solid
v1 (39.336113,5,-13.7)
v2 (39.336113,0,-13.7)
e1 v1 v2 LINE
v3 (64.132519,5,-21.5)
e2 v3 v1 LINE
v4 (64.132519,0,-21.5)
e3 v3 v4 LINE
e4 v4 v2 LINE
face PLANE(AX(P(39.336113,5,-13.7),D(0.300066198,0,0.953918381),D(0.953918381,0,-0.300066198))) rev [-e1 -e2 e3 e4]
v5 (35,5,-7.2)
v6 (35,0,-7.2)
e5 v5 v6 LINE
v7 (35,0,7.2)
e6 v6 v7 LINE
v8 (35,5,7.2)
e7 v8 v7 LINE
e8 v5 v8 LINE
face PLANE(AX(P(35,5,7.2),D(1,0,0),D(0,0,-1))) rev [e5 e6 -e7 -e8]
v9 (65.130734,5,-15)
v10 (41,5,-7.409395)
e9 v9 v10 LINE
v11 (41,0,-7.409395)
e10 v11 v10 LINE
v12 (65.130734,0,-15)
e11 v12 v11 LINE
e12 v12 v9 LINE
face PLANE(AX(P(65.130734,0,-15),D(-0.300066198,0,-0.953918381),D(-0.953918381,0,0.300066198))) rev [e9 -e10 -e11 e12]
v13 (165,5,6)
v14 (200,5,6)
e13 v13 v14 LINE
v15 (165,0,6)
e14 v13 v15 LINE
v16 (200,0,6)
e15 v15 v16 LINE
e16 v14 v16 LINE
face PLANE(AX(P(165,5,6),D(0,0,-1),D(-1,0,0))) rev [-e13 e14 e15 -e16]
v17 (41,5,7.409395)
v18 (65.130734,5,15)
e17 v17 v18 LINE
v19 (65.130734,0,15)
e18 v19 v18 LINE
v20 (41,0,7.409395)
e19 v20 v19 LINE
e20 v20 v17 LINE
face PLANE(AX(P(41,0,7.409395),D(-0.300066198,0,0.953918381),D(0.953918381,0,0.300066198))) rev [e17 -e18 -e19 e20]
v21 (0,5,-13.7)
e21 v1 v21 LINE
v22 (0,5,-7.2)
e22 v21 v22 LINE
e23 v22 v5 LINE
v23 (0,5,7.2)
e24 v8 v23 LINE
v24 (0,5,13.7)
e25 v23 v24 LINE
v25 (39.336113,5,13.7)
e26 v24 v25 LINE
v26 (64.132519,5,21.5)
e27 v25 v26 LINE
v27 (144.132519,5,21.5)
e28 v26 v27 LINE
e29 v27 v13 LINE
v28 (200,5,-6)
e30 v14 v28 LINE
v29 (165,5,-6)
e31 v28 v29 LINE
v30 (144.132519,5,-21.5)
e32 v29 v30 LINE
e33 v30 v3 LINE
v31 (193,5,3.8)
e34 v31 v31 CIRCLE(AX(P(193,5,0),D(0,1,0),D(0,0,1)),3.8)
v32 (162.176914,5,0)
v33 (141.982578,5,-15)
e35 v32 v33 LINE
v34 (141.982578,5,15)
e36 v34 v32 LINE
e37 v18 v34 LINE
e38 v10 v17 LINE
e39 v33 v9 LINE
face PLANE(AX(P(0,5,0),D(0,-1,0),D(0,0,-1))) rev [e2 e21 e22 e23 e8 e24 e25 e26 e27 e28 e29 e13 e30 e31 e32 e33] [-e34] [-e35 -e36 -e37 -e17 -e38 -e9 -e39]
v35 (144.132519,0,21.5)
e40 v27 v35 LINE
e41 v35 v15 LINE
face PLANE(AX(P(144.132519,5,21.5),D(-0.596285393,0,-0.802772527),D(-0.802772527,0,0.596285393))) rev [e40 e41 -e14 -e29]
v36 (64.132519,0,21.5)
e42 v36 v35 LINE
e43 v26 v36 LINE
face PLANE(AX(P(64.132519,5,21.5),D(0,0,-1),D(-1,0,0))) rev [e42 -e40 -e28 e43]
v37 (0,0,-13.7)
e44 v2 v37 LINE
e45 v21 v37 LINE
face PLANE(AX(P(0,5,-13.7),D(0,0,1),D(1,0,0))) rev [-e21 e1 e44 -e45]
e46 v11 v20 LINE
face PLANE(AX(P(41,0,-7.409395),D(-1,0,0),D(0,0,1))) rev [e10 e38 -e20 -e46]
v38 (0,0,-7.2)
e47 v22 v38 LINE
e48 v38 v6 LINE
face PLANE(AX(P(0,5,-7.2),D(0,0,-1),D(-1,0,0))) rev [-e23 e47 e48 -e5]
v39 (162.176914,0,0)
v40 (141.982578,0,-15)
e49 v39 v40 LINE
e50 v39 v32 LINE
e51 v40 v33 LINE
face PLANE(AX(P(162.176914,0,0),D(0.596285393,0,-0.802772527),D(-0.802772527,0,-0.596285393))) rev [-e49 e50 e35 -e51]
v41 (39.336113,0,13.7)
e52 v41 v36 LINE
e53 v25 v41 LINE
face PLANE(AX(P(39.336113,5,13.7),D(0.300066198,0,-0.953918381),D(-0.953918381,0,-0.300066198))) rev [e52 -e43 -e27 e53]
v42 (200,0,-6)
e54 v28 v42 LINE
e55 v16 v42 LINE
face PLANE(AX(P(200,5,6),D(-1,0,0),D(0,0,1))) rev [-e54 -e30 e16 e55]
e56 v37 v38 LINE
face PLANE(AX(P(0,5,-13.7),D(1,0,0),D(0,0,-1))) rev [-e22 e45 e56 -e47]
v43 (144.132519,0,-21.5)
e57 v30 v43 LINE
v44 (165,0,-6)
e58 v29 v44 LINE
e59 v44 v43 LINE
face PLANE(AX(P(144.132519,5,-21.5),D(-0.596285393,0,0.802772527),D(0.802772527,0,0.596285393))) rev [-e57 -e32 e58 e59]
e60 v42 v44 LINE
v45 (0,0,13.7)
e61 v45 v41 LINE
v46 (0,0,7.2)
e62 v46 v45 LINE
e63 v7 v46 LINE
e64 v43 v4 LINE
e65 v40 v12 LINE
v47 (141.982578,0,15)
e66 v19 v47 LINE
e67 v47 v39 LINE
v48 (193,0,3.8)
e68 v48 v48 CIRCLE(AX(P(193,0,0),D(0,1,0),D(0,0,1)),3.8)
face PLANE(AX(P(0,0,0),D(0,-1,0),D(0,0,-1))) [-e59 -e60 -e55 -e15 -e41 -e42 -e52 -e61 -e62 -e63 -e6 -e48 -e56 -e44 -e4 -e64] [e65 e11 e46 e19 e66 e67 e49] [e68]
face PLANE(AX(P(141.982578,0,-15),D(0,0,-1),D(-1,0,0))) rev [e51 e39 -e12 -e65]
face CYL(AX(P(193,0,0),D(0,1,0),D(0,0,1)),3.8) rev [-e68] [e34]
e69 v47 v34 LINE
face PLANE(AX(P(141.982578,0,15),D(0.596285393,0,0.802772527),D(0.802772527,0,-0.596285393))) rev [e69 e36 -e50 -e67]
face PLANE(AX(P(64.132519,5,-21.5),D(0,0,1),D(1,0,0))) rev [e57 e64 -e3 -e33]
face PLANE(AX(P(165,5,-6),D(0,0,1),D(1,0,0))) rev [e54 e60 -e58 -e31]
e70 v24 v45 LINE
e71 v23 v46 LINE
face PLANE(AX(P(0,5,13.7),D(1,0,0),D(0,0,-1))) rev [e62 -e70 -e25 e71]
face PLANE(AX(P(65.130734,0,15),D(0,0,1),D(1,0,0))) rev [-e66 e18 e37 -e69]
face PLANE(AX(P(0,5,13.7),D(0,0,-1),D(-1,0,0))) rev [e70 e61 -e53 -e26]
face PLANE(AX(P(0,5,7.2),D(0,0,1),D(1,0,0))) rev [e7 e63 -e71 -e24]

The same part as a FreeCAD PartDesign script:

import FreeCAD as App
import Part
import Sketcher


def add_polygon(sketch, points):
    """Adds a closed chain of lines whose ends are joined by coincident constraints."""
    first, n = sketch.GeometryCount, len(points)
    for a, b in zip(points, points[1:] + points[:1]):
        sketch.addGeometry(Part.LineSegment(App.Vector(*a, 0), App.Vector(*b, 0)), False)
    for i in range(n):
        sketch.addConstraint(Sketcher.Constraint("Coincident", first + i, 2, first + (i + 1) % n, 1))

doc = App.newDocument("Part")
params = doc.addObject("Spreadsheet::Sheet", "Params")
for row, (alias, value) in enumerate([
    ("sketch1_width", "80 mm"),
    ("sketch1_width2", "35 mm"),
    ("sketch1_height", "12 mm"),
    ("sketch1_height2", "6.5 mm"),
    ("sketch1_height3", "14.4 mm"),
    ("pad1_length", "5 mm"),
    ("sketch2_diameter", "7.6 mm"),
], start=1):
    params.set(f"A{row}", alias)
    params.set(f"B{row}", "=" + value)
    params.setAlias(f"B{row}", alias)

body = doc.addObject("PartDesign::Body", "Body")

# Sketch on XZ plane
sketch1 = doc.addObject("Sketcher::SketchObject", "Sketch")
body.addObject(sketch1)
sketch1.AttachmentSupport = (doc.XZ_Plane, [""])
sketch1.MapMode = "FlatFace"
add_polygon(sketch1, [(0, 14), (39, 14), (64, 22), (144, 22), (165, 6), (200, 6), (200, -6), (165, -6), (144, -22), (64, -22), (39, -14), (0, -14), (0, -7), (35, -7), (35, 7), (0, 7)])  # lines 0-15
sketch1.addConstraint([
    Sketcher.Constraint("Horizontal", 0),
    Sketcher.Constraint("Horizontal", 2),
    Sketcher.Constraint("Horizontal", 4),
    Sketcher.Constraint("Vertical", 5),
    Sketcher.Constraint("Horizontal", 6),
    Sketcher.Constraint("Horizontal", 8),
    Sketcher.Constraint("Horizontal", 10),
    Sketcher.Constraint("Vertical", 11),
    Sketcher.Constraint("Horizontal", 12),
    Sketcher.Constraint("Vertical", 13),
    Sketcher.Constraint("Horizontal", 14),
    Sketcher.Constraint("Vertical", 15),
    Sketcher.Constraint("Symmetric", 11, 2, 14, 2, -1, 1),
    Sketcher.Constraint("Symmetric", 3, 2, 6, 2, -1),
    Sketcher.Constraint("Symmetric", 2, 2, 7, 2, -1),
    Sketcher.Constraint("Symmetric", 0, 2, 9, 2, -1),
    Sketcher.Constraint("PointOnObject", 10, 2, -2),
    Sketcher.Constraint("Vertical", 1, 2, 8, 2),
    Sketcher.Constraint("Equal", 6, 12),
    Sketcher.Constraint("Equal", 1, 3),
    Sketcher.Constraint("DistanceX", 2, 1, 2, 2, 80.0),
    Sketcher.Constraint("DistanceX", 4, 1, 4, 2, 35.0),
    Sketcher.Constraint("DistanceY", 5, 2, 5, 1, 12.0),
    Sketcher.Constraint("DistanceY", 11, 1, 11, 2, 6.5),
    Sketcher.Constraint("DistanceY", 13, 1, 13, 2, 14.4),
    Sketcher.Constraint("DistanceX", -1, 1, 3, 2, 165.0),
    Sketcher.Constraint("DistanceY", 7, 2, 2, 2, 43.0),
    Sketcher.Constraint("DistanceX", 0, 1, 0, 2, 39.336113),
])
sketch1.setExpression("Constraints[36]", "Params.sketch1_width")
sketch1.setExpression("Constraints[37]", "Params.sketch1_width2")
sketch1.setExpression("Constraints[38]", "Params.sketch1_height")
sketch1.setExpression("Constraints[39]", "Params.sketch1_height2")
sketch1.setExpression("Constraints[40]", "Params.sketch1_height3")
pad1 = doc.addObject("PartDesign::Pad", "Pad")
body.addObject(pad1)
pad1.Profile = sketch1
pad1.setExpression("Length", "Params.pad1_length")
pad1.Reversed = True

# Sketch on XZ plane
sketch2 = doc.addObject("Sketcher::SketchObject", "Sketch001")
body.addObject(sketch2)
sketch2.AttachmentSupport = (doc.XZ_Plane, [""])
sketch2.MapMode = "FlatFace"
sketch2.AttachmentOffset = App.Placement(App.Vector(0, 0, -5), App.Rotation())
sketch2.addGeometry(Part.Circle(App.Vector(193, 0, 0), App.Vector(0, 0, 1), 3.8), False)  # 0
add_polygon(sketch2, [(41, -7.4), (41, 7.4), (65.1, 15), (142, 15), (162.2, 0), (142, -15), (65.1, -15)])  # lines 1-7
sketch2.addConstraint([
    Sketcher.Constraint("Vertical", 1),
    Sketcher.Constraint("Horizontal", 3),
    Sketcher.Constraint("Horizontal", 6),
    Sketcher.Constraint("Symmetric", 3, 2, 5, 2, -1),
    Sketcher.Constraint("PointOnObject", 0, 3, -1),
    Sketcher.Constraint("PointOnObject", 4, 2, -1),
    Sketcher.Constraint("Vertical", 2, 2, 6, 2),
    Sketcher.Constraint("Equal", 2, 7),
    Sketcher.Constraint("Diameter", 0, 7.6),
    Sketcher.Constraint("DistanceX", -1, 1, 0, 3, 193.0),
    Sketcher.Constraint("DistanceX", -1, 1, 1, 2, 41.0),
    Sketcher.Constraint("DistanceY", -1, 1, 2, 2, 15.0),
    Sketcher.Constraint("DistanceY", 1, 1, 1, 2, 14.81879),
    Sketcher.Constraint("Distance", 4, 25.155739),
    Sketcher.Constraint("DistanceX", 3, 1, 3, 2, 76.851844),
    Sketcher.Constraint("Distance", 2, 25.296434),
])
sketch2.setExpression("Constraints[15]", "Params.sketch2_diameter")
pocket1 = doc.addObject("PartDesign::Pocket", "Pocket")
body.addObject(pocket1)
pocket1.Profile = sketch2
pocket1.Type = "ThroughAll"
pocket1.Reversed = True

doc.recompute()
